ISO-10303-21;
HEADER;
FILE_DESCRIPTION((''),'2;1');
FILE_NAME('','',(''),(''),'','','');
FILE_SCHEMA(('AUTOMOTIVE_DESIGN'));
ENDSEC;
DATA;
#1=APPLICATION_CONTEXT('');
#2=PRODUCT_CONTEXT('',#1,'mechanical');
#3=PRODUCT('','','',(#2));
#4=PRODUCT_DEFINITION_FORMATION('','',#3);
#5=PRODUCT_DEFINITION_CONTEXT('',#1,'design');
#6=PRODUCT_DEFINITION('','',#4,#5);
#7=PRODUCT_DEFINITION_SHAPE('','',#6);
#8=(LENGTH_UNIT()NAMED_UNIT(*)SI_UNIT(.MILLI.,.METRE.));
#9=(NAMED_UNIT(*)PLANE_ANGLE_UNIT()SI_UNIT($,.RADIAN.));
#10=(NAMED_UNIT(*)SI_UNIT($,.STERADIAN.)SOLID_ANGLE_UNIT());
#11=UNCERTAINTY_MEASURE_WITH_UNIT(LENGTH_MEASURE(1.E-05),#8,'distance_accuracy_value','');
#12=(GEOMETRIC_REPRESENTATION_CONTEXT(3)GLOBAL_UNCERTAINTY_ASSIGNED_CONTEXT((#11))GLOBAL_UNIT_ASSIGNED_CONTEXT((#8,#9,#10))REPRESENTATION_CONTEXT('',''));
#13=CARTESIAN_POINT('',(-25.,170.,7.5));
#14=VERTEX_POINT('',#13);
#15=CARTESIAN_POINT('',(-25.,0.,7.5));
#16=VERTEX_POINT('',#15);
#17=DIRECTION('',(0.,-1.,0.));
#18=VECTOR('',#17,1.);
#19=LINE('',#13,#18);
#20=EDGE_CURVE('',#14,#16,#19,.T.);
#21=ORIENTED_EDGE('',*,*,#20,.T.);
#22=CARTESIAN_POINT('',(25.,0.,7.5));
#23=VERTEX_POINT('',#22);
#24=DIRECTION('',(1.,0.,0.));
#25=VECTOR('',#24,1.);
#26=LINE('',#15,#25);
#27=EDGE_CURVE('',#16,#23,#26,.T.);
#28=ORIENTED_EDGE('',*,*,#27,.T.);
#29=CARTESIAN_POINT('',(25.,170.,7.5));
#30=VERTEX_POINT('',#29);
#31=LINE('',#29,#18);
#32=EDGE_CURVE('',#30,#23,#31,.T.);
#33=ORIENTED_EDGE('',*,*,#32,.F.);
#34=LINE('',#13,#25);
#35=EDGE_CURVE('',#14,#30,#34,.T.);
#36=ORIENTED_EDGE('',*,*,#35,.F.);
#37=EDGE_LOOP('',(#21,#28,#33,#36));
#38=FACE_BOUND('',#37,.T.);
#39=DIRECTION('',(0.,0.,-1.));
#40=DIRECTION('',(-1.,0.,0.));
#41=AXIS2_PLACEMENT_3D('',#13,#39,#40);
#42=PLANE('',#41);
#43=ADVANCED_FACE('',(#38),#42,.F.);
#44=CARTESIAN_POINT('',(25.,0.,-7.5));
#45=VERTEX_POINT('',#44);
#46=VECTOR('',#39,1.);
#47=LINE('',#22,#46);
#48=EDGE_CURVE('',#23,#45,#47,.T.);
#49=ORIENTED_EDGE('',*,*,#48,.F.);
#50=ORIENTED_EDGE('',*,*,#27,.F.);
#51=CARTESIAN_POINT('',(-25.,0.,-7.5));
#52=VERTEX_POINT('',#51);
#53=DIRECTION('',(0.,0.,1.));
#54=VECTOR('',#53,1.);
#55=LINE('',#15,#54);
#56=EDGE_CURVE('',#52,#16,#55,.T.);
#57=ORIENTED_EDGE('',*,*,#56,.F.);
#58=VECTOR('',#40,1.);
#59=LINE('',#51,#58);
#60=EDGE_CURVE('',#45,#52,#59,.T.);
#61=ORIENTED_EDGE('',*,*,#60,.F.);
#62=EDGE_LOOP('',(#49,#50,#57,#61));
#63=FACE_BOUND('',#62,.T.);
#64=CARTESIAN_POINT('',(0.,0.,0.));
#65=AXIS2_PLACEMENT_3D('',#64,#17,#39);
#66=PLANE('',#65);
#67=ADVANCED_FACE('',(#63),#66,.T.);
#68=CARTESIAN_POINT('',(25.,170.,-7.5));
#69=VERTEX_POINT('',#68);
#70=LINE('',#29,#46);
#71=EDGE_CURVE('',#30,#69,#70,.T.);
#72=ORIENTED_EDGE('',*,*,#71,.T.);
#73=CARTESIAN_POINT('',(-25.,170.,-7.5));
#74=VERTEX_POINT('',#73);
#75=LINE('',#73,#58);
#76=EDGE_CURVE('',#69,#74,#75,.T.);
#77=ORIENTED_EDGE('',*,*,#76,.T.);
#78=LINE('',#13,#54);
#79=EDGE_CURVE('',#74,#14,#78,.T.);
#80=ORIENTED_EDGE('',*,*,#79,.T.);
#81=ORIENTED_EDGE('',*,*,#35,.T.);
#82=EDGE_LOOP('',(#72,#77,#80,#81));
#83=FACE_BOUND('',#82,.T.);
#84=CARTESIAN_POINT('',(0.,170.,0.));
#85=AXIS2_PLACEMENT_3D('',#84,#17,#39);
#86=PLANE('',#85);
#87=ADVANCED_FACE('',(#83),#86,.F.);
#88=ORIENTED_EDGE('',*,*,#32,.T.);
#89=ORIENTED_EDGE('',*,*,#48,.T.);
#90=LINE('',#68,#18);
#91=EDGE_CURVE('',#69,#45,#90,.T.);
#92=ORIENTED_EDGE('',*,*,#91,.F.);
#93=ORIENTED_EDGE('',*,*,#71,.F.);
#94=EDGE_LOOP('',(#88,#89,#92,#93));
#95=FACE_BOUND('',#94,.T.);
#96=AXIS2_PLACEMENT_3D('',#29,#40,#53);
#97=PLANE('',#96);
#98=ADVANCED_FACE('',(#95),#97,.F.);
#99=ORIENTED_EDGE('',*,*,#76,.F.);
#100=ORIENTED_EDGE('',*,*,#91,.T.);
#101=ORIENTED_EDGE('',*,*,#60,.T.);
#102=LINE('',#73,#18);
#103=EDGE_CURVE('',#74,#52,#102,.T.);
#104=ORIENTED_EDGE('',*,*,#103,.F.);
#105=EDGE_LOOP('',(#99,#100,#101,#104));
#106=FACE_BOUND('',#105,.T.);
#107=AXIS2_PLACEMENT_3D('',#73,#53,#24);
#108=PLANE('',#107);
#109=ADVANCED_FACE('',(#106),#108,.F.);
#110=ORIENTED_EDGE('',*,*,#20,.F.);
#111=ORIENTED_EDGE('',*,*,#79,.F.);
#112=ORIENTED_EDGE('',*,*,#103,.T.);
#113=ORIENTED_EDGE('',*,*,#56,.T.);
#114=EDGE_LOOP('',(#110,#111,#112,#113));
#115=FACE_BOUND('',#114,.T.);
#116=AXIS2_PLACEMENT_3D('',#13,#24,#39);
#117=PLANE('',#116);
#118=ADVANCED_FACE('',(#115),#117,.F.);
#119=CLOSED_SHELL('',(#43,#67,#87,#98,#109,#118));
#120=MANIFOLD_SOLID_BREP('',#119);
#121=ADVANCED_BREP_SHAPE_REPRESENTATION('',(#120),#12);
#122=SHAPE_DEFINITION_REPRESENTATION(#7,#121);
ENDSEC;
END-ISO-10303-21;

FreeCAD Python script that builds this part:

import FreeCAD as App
import Part
import Sketcher
from FreeCAD import Vector

doc = App.newDocument("Part")
body = doc.addObject("PartDesign::Body", "Body")

sketch1 = body.newObject("Sketcher::SketchObject", "Sketch")
sketch1.AttachmentSupport = (doc.getObject("XZ_Plane"), [""])
sketch1.MapMode = "FlatFace"
sketch1.addGeometry([
    Part.LineSegment(Vector(-25, -7.5, 0), Vector(-25, 7.5, 0)),
    Part.LineSegment(Vector(-25, 7.5, 0), Vector(25, 7.5, 0)),
    Part.LineSegment(Vector(25, 7.5, 0), Vector(25, -7.5, 0)),
    Part.LineSegment(Vector(25, -7.5, 0), Vector(-25, -7.5, 0)),
], False)
sketch1.addConstraint([
    Sketcher.Constraint("Coincident", 0, 2, 1, 1),
    Sketcher.Constraint("Coincident", 1, 2, 2, 1),
    Sketcher.Constraint("Coincident", 2, 2, 3, 1),
    Sketcher.Constraint("Coincident", 3, 2, 0, 1),
    Sketcher.Constraint("Vertical", 0),
    Sketcher.Constraint("Horizontal", 1),
    Sketcher.Constraint("Vertical", 2),
    Sketcher.Constraint("Horizontal", 3),
    Sketcher.Constraint("Symmetric", 0, 2, 2, 2, -1, 1),
    Sketcher.Constraint("DistanceX", 1, 1, 1, 2, 50.0),
    Sketcher.Constraint("DistanceY", 0, 1, 0, 2, 15.0),
])
pad1 = body.newObject("PartDesign::Pad", "Pad")
pad1.Profile = sketch1
pad1.Length = 170
pad1.Reversed = True

doc.recompute()
